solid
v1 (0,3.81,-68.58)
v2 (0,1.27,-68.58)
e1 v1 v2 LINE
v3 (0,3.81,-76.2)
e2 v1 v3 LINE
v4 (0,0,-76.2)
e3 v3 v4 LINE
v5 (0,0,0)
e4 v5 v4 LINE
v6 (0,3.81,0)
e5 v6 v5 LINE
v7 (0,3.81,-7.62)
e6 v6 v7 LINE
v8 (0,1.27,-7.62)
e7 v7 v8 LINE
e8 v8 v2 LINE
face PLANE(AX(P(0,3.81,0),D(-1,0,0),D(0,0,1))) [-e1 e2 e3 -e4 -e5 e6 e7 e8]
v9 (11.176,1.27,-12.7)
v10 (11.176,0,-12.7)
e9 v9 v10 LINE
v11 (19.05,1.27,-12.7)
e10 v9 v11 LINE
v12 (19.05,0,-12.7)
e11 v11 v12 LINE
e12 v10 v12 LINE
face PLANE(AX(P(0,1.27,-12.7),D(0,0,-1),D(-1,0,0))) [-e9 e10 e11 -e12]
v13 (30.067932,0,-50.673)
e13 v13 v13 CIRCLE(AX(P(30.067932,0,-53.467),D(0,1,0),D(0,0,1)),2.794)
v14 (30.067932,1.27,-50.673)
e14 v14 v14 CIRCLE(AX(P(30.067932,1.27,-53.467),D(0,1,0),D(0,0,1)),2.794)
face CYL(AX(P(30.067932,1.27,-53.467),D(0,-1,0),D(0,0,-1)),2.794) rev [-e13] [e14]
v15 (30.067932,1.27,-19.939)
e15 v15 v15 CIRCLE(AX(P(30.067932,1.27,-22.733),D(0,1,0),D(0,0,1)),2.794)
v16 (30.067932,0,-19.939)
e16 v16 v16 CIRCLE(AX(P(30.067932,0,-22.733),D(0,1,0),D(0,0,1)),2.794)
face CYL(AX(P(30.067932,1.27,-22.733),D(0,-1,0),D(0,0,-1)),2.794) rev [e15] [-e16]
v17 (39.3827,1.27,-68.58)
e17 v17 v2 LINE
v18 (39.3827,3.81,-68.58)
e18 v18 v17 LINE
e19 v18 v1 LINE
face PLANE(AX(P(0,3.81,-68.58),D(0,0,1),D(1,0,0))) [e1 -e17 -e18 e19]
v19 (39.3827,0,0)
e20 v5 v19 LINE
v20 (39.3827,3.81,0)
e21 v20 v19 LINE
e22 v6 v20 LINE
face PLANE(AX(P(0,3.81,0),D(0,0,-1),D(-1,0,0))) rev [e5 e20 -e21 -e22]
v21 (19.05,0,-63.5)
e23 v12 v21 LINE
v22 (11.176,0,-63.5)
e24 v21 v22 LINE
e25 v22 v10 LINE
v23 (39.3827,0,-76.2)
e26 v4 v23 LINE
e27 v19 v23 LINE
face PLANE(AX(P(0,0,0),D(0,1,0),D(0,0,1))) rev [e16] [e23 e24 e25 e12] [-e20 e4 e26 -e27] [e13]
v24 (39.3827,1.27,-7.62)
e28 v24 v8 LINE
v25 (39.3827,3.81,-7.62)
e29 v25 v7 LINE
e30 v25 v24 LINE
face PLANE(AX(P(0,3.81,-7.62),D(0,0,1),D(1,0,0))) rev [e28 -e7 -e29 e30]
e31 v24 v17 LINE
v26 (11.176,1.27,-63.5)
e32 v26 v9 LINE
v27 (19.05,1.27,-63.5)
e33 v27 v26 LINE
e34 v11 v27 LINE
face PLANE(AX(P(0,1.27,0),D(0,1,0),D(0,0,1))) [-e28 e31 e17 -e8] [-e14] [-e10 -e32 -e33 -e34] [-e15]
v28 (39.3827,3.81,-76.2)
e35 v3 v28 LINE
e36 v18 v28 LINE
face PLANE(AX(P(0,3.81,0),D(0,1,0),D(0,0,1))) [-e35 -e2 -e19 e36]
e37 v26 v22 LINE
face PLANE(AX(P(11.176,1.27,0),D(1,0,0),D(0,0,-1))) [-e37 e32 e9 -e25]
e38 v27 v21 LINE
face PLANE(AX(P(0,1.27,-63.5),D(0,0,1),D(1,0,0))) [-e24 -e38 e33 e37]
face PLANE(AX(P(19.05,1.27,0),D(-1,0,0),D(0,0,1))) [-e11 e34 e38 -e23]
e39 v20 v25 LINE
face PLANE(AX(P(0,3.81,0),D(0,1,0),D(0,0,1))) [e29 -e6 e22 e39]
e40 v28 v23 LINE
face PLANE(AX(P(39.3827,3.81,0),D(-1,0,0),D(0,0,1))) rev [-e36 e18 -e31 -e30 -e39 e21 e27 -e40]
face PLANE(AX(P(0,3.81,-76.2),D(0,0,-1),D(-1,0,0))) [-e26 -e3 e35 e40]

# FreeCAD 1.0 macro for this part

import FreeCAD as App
import Part
import Sketcher
Q = App.Units.Quantity

doc = App.newDocument("Part")
body = doc.addObject("PartDesign::Body", "Body")

# Sketch on XZ plane
sketch1 = body.newObject("Sketcher::SketchObject", "Sketch")
sketch1.AttachmentSupport = (doc.getObject("XZ_Plane"), [""])
sketch1.MapMode = "FlatFace"
sketch1.addGeometry(Part.LineSegment(App.Vector(0, -7.62, 0), App.Vector(0, 0, 0)), False)
sketch1.addGeometry(Part.LineSegment(App.Vector(0, 0, 0), App.Vector(39.3827, 0, 0)), False)
sketch1.addGeometry(Part.LineSegment(App.Vector(39.3827, 0, 0), App.Vector(39.3827, -7.62, 0)), False)
sketch1.addGeometry(Part.LineSegment(App.Vector(39.3827, -7.62, 0), App.Vector(0, -7.62, 0)), False)
sketch1.addConstraint(Sketcher.Constraint("Coincident", 0, 2, 1, 1))
sketch1.addConstraint(Sketcher.Constraint("Coincident", 1, 2, 2, 1))
sketch1.addConstraint(Sketcher.Constraint("Coincident", 2, 2, 3, 1))
sketch1.addConstraint(Sketcher.Constraint("Coincident", 3, 2, 0, 1))
sketch1.addConstraint(Sketcher.Constraint("Vertical", 0))
sketch1.addConstraint(Sketcher.Constraint("Horizontal", 1))
sketch1.addConstraint(Sketcher.Constraint("Vertical", 2))
sketch1.addConstraint(Sketcher.Constraint("Horizontal", 3))
sketch1.addConstraint(Sketcher.Constraint("Coincident", 0, 2, -1, 1))
sketch1.addConstraint(Sketcher.Constraint("DistanceY", 0, 1, 0, 2, Q("0.3 in")))
sketch1.addConstraint(Sketcher.Constraint("DistanceX", 1, 1, 1, 2, Q("1.5505 in")))
pad1 = body.newObject("PartDesign::Pad", "Pad")
pad1.Profile = sketch1
pad1.Length = Q("0.15 in")
pad1.Reversed = True
body2 = doc.addObject("PartDesign::Body", "Body001")

# Sketch on XZ plane
sketch2 = body2.newObject("Sketcher::SketchObject", "Sketch001")
sketch2.AttachmentSupport = (doc.getObject("XZ_Plane001"), [""])
sketch2.MapMode = "FlatFace"
sketch2.addGeometry(Part.LineSegment(App.Vector(0, -76.2, 0), App.Vector(0, -68.58, 0)), False)
sketch2.addGeometry(Part.LineSegment(App.Vector(0, -68.58, 0), App.Vector(39.3827, -68.58, 0)), False)
sketch2.addGeometry(Part.LineSegment(App.Vector(39.3827, -68.58, 0), App.Vector(39.3827, -76.2, 0)), False)
sketch2.addGeometry(Part.LineSegment(App.Vector(39.3827, -76.2, 0), App.Vector(0, -76.2, 0)), False)
sketch2.addConstraint(Sketcher.Constraint("Coincident", 0, 2, 1, 1))
sketch2.addConstraint(Sketcher.Constraint("Coincident", 1, 2, 2, 1))
sketch2.addConstraint(Sketcher.Constraint("Coincident", 2, 2, 3, 1))
sketch2.addConstraint(Sketcher.Constraint("Coincident", 3, 2, 0, 1))
sketch2.addConstraint(Sketcher.Constraint("Vertical", 0))
sketch2.addConstraint(Sketcher.Constraint("Horizontal", 1))
sketch2.addConstraint(Sketcher.Constraint("Vertical", 2))
sketch2.addConstraint(Sketcher.Constraint("Horizontal", 3))
sketch2.addConstraint(Sketcher.Constraint("PointOnObject", 0, 2, -2))
sketch2.addConstraint(Sketcher.Constraint("DistanceY", 0, 1, 0, 2, Q("0.3 in")))
sketch2.addConstraint(Sketcher.Constraint("DistanceY", 2, 2, -1, 1, Q("3 in")))
sketch2.addConstraint(Sketcher.Constraint("DistanceX", 1, 1, 1, 2, Q("1.5505 in")))
pad2 = body2.newObject("PartDesign::Pad", "Pad001")
pad2.Profile = sketch2
pad2.Length = Q("0.15 in")
pad2.Reversed = True
body.AllowCompound = True
doc.recompute()

boolean = body.newObject("PartDesign::Boolean", "Boolean")
boolean.Type = "Fuse"
boolean.addObjects([body2])

# Sketch on XZ plane
sketch3 = body.newObject("Sketcher::SketchObject", "Sketch002")
sketch3.AttachmentSupport = (doc.getObject("XZ_Plane"), [""])
sketch3.MapMode = "FlatFace"
sketch3.addGeometry(Part.LineSegment(App.Vector(0, -68.58, 0), App.Vector(0, -7.62, 0)), False)
sketch3.addGeometry(Part.LineSegment(App.Vector(0, -7.62, 0), App.Vector(39.3827, -7.62, 0)), False)
sketch3.addGeometry(Part.LineSegment(App.Vector(39.3827, -7.62, 0), App.Vector(39.3827, -68.58, 0)), False)
sketch3.addGeometry(Part.LineSegment(App.Vector(39.3827, -68.58, 0), App.Vector(0, -68.58, 0)), False)
sketch3.addGeometry(Part.LineSegment(App.Vector(11.176, -63.5, 0), App.Vector(19.05, -63.5, 0)), False)
sketch3.addGeometry(Part.LineSegment(App.Vector(19.05, -63.5, 0), App.Vector(19.05, -12.7, 0)), False)
sketch3.addGeometry(Part.LineSegment(App.Vector(19.05, -12.7, 0), App.Vector(11.176, -12.7, 0)), False)
sketch3.addGeometry(Part.LineSegment(App.Vector(11.176, -12.7, 0), App.Vector(11.176, -63.5, 0)), False)
sketch3.addGeometry(Part.Circle(App.Vector(30.067932, -22.733, 0), App.Vector(0, 0, 1), 2.794), False)
sketch3.addGeometry(Part.Circle(App.Vector(30.067932, -53.467, 0), App.Vector(0, 0, 1), 2.794), False)
sketch3.addConstraint(Sketcher.Constraint("Coincident", 0, 2, 1, 1))
sketch3.addConstraint(Sketcher.Constraint("Coincident", 1, 2, 2, 1))
sketch3.addConstraint(Sketcher.Constraint("Coincident", 2, 2, 3, 1))
sketch3.addConstraint(Sketcher.Constraint("Coincident", 3, 2, 0, 1))
sketch3.addConstraint(Sketcher.Constraint("Coincident", 4, 2, 5, 1))
sketch3.addConstraint(Sketcher.Constraint("Coincident", 5, 2, 6, 1))
sketch3.addConstraint(Sketcher.Constraint("Coincident", 6, 2, 7, 1))
sketch3.addConstraint(Sketcher.Constraint("Coincident", 7, 2, 4, 1))
sketch3.addConstraint(Sketcher.Constraint("Vertical", 0))
sketch3.addConstraint(Sketcher.Constraint("Horizontal", 1))
sketch3.addConstraint(Sketcher.Constraint("Vertical", 2))
sketch3.addConstraint(Sketcher.Constraint("Horizontal", 3))
sketch3.addConstraint(Sketcher.Constraint("Horizontal", 4))
sketch3.addConstraint(Sketcher.Constraint("Vertical", 5))
sketch3.addConstraint(Sketcher.Constraint("Horizontal", 6))
sketch3.addConstraint(Sketcher.Constraint("Vertical", 7))
sketch3.addConstraint(Sketcher.Constraint("Equal", 8, 9))
sketch3.addConstraint(Sketcher.Constraint("PointOnObject", 0, 2, -2))
sketch3.addConstraint(Sketcher.Constraint("Vertical", 8, 3, 9, 3))
sketch3.addConstraint(Sketcher.Constraint("Diameter", 8, Q("0.22 in")))
sketch3.addConstraint(Sketcher.Constraint("DistanceY", 5, 1, 5, 2, Q("2 in")))
sketch3.addConstraint(Sketcher.Constraint("DistanceY", 0, 1, 0, 2, Q("2.4 in")))
sketch3.addConstraint(Sketcher.Constraint("DistanceX", 4, 1, 4, 2, Q("0.31 in")))
sketch3.addConstraint(Sketcher.Constraint("DistanceY", 0, 2, -1, 1, Q("0.3 in")))
sketch3.addConstraint(Sketcher.Constraint("DistanceY", 4, 2, -1, 1, Q("2.5 in")))
sketch3.addConstraint(Sketcher.Constraint("DistanceX", -1, 1, 4, 2, Q("0.75 in")))
sketch3.addConstraint(Sketcher.Constraint("DistanceY", 9, 3, 8, 3, Q("1.21 in")))
sketch3.addConstraint(Sketcher.Constraint("DistanceX", 1, 1, 1, 2, Q("1.5505 in")))
sketch3.addConstraint(Sketcher.Constraint("DistanceY", 8, 3, -1, 1, Q("0.895 in")))
sketch3.addConstraint(Sketcher.Constraint("DistanceX", -1, 1, 8, 3, Q("30.067932 mm")))
pad3 = body.newObject("PartDesign::Pad", "Pad002")
pad3.Profile = sketch3
pad3.Length = Q("0.05 in")
pad3.Reversed = True

doc.recompute()
